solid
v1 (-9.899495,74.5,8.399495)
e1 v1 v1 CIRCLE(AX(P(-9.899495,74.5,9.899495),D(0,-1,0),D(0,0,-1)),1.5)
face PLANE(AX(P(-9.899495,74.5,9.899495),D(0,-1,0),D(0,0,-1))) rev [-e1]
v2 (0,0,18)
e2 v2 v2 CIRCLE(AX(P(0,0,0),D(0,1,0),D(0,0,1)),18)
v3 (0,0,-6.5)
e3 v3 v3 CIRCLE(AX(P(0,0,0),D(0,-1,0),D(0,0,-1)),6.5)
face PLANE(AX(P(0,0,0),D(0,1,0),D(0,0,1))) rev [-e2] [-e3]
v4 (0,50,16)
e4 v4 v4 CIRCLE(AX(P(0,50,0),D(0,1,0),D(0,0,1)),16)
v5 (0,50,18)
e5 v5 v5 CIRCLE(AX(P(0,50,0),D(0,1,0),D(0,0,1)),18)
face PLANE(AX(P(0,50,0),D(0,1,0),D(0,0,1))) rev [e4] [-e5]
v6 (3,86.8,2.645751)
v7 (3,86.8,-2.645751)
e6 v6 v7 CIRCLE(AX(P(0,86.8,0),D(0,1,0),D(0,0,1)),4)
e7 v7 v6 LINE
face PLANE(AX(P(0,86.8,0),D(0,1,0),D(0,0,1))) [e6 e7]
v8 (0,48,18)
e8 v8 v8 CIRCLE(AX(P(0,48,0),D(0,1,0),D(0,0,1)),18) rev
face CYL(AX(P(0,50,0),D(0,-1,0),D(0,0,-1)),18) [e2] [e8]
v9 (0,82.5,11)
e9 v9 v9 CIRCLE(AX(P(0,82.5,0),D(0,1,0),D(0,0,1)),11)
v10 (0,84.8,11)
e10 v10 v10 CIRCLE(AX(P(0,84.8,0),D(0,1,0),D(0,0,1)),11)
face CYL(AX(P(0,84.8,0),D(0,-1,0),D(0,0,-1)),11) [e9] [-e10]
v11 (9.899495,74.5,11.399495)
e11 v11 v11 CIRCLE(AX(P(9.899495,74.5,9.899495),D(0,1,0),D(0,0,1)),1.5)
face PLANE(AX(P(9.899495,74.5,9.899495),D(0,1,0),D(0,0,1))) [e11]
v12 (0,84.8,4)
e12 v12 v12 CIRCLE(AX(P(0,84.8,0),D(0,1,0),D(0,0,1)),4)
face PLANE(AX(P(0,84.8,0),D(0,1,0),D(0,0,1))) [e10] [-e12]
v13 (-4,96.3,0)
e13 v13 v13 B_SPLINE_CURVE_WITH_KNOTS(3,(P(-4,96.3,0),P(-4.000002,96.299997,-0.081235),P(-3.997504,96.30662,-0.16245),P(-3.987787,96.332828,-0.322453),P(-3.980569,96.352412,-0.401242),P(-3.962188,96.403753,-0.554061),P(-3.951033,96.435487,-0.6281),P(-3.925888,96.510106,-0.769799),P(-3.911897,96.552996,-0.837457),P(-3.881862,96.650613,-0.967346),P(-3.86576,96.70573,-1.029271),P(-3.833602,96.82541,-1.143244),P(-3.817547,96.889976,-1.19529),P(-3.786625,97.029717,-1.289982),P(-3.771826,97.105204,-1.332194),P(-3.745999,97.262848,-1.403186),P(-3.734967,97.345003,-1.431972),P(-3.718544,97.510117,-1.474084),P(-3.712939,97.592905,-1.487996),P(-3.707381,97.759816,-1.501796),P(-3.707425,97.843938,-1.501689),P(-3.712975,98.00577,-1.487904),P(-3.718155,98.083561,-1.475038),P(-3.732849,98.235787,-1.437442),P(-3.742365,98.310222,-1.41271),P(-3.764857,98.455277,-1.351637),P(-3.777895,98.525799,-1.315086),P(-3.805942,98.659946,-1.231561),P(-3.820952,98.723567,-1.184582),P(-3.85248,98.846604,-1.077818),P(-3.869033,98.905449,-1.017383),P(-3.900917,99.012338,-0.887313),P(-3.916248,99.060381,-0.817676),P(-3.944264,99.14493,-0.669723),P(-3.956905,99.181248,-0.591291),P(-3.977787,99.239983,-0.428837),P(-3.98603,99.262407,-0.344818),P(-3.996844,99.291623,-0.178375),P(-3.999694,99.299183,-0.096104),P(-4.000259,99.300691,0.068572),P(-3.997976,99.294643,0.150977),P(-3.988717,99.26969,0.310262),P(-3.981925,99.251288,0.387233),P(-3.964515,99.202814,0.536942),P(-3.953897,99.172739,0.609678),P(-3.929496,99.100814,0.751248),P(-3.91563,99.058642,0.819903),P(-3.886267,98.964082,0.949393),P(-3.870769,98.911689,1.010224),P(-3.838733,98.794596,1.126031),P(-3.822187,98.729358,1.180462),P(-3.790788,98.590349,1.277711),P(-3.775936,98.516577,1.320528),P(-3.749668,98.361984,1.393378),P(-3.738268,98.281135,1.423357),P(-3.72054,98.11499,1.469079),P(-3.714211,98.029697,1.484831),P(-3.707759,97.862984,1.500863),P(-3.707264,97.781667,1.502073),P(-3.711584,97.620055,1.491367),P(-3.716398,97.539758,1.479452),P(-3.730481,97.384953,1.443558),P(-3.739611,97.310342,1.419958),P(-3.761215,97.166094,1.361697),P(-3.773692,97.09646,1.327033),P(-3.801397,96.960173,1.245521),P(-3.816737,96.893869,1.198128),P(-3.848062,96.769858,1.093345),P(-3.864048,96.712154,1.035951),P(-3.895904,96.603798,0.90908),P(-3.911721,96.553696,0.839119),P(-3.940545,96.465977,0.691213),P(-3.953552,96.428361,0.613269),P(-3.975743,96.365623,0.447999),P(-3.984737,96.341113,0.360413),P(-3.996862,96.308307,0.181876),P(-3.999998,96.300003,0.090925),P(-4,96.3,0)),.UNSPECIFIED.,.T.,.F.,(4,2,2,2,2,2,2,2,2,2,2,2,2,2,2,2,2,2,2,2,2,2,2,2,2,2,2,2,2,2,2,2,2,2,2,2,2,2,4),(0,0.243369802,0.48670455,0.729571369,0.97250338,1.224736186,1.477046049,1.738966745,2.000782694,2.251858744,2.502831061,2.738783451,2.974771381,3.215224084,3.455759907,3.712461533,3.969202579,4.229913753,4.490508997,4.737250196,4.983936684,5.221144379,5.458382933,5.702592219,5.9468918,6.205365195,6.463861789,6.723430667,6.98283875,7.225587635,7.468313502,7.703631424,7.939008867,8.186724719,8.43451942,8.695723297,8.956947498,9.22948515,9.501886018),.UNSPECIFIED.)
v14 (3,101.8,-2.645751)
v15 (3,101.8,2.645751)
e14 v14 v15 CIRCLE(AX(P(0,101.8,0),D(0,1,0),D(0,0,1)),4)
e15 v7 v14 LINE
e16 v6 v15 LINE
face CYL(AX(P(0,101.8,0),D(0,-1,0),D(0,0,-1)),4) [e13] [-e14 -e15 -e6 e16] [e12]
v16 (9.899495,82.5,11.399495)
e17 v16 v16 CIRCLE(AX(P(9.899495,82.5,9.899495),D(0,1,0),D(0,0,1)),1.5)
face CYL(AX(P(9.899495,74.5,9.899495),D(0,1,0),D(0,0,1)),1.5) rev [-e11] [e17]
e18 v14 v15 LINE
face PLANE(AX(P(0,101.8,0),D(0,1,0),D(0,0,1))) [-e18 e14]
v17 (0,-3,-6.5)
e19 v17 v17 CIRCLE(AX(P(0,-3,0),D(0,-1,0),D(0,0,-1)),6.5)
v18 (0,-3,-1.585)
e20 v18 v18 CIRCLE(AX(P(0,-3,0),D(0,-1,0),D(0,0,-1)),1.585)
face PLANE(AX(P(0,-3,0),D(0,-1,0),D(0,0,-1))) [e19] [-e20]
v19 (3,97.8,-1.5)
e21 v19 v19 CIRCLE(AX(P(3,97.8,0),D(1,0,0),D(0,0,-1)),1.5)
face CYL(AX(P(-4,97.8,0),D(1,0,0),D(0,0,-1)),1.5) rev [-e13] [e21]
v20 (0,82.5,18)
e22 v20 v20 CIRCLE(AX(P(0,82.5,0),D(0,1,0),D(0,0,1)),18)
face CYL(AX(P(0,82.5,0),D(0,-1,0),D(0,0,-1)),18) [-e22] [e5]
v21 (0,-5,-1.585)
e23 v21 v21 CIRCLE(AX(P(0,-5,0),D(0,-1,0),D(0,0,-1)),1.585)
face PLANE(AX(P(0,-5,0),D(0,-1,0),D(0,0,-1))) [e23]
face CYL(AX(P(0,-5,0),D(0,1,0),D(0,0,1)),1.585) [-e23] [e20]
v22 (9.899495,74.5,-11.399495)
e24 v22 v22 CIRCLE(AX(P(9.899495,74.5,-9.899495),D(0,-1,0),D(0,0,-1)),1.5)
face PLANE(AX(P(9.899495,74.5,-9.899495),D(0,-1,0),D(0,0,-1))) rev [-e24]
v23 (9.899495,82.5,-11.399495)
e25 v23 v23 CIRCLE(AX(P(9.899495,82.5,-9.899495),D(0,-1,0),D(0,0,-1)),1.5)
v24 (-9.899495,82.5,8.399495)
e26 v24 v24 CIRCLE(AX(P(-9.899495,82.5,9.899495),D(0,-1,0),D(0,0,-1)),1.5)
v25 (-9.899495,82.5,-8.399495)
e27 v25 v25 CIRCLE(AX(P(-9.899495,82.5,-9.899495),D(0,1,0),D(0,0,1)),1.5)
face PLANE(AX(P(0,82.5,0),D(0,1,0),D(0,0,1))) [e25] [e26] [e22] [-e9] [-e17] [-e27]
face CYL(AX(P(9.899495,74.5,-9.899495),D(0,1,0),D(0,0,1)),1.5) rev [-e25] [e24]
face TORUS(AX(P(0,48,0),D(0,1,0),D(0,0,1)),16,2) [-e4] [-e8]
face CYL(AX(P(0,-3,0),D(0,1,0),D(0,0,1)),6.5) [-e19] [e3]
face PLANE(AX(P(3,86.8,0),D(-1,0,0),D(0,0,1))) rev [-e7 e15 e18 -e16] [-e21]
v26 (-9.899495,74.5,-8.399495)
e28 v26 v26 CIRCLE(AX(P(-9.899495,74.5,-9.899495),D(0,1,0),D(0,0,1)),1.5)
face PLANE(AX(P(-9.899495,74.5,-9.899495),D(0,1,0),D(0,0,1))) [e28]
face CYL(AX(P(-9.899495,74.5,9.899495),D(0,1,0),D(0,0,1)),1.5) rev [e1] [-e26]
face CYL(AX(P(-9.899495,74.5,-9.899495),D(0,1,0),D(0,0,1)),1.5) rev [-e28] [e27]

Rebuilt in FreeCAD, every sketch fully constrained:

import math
import FreeCAD as App
import Part
import Sketcher
Q = App.Units.Quantity


def edges_at(feature, points):
    """Names of the edges that pass closest to the given points."""
    edges = feature.Shape.Edges
    near = lambda p: min(range(len(edges)), key=lambda i: edges[i].distToShape(Part.Vertex(*p))[0])
    return sorted({f"Edge{near(p) + 1}" for p in points})

doc = App.newDocument("Part")
params = doc.addObject("Spreadsheet::Sheet", "Params")
for row, (alias, value) in enumerate([
    ("sketch1_diameter", "36 mm"),
    ("pad1_length", "50 mm"),
    ("fillet_radius", "2 mm"),
    ("sketch2_diameter", "13 mm"),
    ("pad2_length", "3 mm"),
    ("sketch3_diameter", "36 mm"),
    ("pad3_length", "32.5 mm"),
    ("sketch4_diameter", "22 mm"),
    ("pad4_length", "2.3 mm"),
    ("sketch5_diameter", "8 mm"),
    ("pad5_length", "17 mm"),
    ("sketch6_radius", "4 mm"),
    ("pocket1_length", "15 mm"),
    ("sketch7_diameter", "3 mm"),
    ("pocket2_length", "8 mm"),
    ("sketch8_diameter", "3.17 mm"),
    ("pad6_length", "2 mm"),
    ("sketch9_diameter", "3 mm"),
    ("pocket3_length", "7 mm"),
], start=1):
    params.set(f"A{row}", alias)
    params.set(f"B{row}", "=" + value)
    params.setAlias(f"B{row}", alias)

body = doc.addObject("PartDesign::Body", "Body")

# Sketch on XZ plane
sketch1 = doc.addObject("Sketcher::SketchObject", "Sketch")
body.addObject(sketch1)
sketch1.AttachmentSupport = (doc.XZ_Plane, [""])
sketch1.MapMode = "FlatFace"
sketch1.addGeometry(Part.Circle(App.Vector(0, 0, 0), App.Vector(0, 0, 1), 18), False)
sketch1.addConstraint(Sketcher.Constraint("Coincident", 0, 3, -1, 1))
sketch1.addConstraint(Sketcher.Constraint("Diameter", 0, Q("36 mm")))
sketch1.setExpression("Constraints[1]", "Params.sketch1_diameter")
pad1 = doc.addObject("PartDesign::Pad", "Pad")
body.addObject(pad1)
pad1.Profile = sketch1
pad1.setExpression("Length", "Params.pad1_length")
pad1.Reversed = True
doc.recompute()

fillet = doc.addObject("PartDesign::Fillet", "Fillet")
body.addObject(fillet)
fillet.Base = (pad1, edges_at(pad1, [(0, 50, -18)]))
fillet.setExpression("Radius", "Params.fillet_radius")

# Sketch on XZ plane
sketch2 = doc.addObject("Sketcher::SketchObject", "Sketch001")
body.addObject(sketch2)
sketch2.AttachmentSupport = (doc.XZ_Plane, [""])
sketch2.MapMode = "FlatFace"
sketch2.addGeometry(Part.Circle(App.Vector(0, 0, 0), App.Vector(0, 0, 1), 6.5), False)
sketch2.addConstraint(Sketcher.Constraint("Coincident", 0, 3, -1, 1))
sketch2.addConstraint(Sketcher.Constraint("Diameter", 0, Q("13 mm")))
sketch2.setExpression("Constraints[1]", "Params.sketch2_diameter")
pad2 = doc.addObject("PartDesign::Pad", "Pad001")
body.addObject(pad2)
pad2.Profile = sketch2
pad2.setExpression("Length", "Params.pad2_length")

# Sketch on XZ plane
sketch3 = doc.addObject("Sketcher::SketchObject", "Sketch002")
body.addObject(sketch3)
sketch3.AttachmentSupport = (doc.XZ_Plane, [""])
sketch3.MapMode = "FlatFace"
sketch3.AttachmentOffset = App.Placement(App.Vector(0, 0, -50), App.Rotation())
sketch3.addGeometry(Part.Circle(App.Vector(0, 0, 0), App.Vector(0, 0, 1), 18), False)
sketch3.addConstraint(Sketcher.Constraint("Coincident", 0, 3, -1, 1))
sketch3.addConstraint(Sketcher.Constraint("Diameter", 0, Q("36 mm")))
sketch3.setExpression("Constraints[1]", "Params.sketch3_diameter")
pad3 = doc.addObject("PartDesign::Pad", "Pad002")
body.addObject(pad3)
pad3.Profile = sketch3
pad3.setExpression("Length", "Params.pad3_length")
pad3.Reversed = True

# Sketch on XZ plane
sketch4 = doc.addObject("Sketcher::SketchObject", "Sketch003")
body.addObject(sketch4)
sketch4.AttachmentSupport = (doc.XZ_Plane, [""])
sketch4.MapMode = "FlatFace"
sketch4.AttachmentOffset = App.Placement(App.Vector(0, 0, -82.5), App.Rotation())
sketch4.addGeometry(Part.Circle(App.Vector(0, 0, 0), App.Vector(0, 0, 1), 11), False)
sketch4.addConstraint(Sketcher.Constraint("Coincident", 0, 3, -1, 1))
sketch4.addConstraint(Sketcher.Constraint("Diameter", 0, Q("22 mm")))
sketch4.setExpression("Constraints[1]", "Params.sketch4_diameter")
pad4 = doc.addObject("PartDesign::Pad", "Pad003")
body.addObject(pad4)
pad4.Profile = sketch4
pad4.setExpression("Length", "Params.pad4_length")
pad4.Reversed = True

# Sketch on XZ plane
sketch5 = doc.addObject("Sketcher::SketchObject", "Sketch004")
body.addObject(sketch5)
sketch5.AttachmentSupport = (doc.XZ_Plane, [""])
sketch5.MapMode = "FlatFace"
sketch5.AttachmentOffset = App.Placement(App.Vector(0, 0, -84.8), App.Rotation())
sketch5.addGeometry(Part.Circle(App.Vector(0, 0, 0), App.Vector(0, 0, 1), 4), False)
sketch5.addConstraint(Sketcher.Constraint("Coincident", 0, 3, -1, 1))
sketch5.addConstraint(Sketcher.Constraint("Diameter", 0, Q("8 mm")))
sketch5.setExpression("Constraints[1]", "Params.sketch5_diameter")
pad5 = doc.addObject("PartDesign::Pad", "Pad004")
body.addObject(pad5)
pad5.Profile = sketch5
pad5.setExpression("Length", "Params.pad5_length")
pad5.Reversed = True

# Sketch on XZ plane
sketch6 = doc.addObject("Sketcher::SketchObject", "Sketch005")
body.addObject(sketch6)
sketch6.AttachmentSupport = (doc.XZ_Plane, [""])
sketch6.MapMode = "FlatFace"
sketch6.AttachmentOffset = App.Placement(App.Vector(0, 0, -86.8), App.Rotation())
sketch6.addGeometry(Part.LineSegment(App.Vector(3, -2.645751, 0), App.Vector(3, 2.645751, 0)), False)
sketch6.addGeometry(Part.ArcOfCircle(Part.Circle(App.Vector(0, 0, 0), App.Vector(0, 0, 1), 4), math.radians(-41.409622), math.radians(41.409622)), False)
sketch6.addConstraint(Sketcher.Constraint("Coincident", 0, 1, 1, 1))
sketch6.addConstraint(Sketcher.Constraint("Coincident", 1, 2, 0, 2))
sketch6.addConstraint(Sketcher.Constraint("Vertical", 0))
sketch6.addConstraint(Sketcher.Constraint("Coincident", 1, 3, -1, 1))
sketch6.addConstraint(Sketcher.Constraint("Radius", 1, Q("4 mm")))
sketch6.addConstraint(Sketcher.Constraint("DistanceX", -1, 1, 0, 1, Q("3 mm")))
sketch6.setExpression("Constraints[4]", "Params.sketch6_radius")
pocket1 = doc.addObject("PartDesign::Pocket", "Pocket")
body.addObject(pocket1)
pocket1.Profile = sketch6
pocket1.setExpression("Length", "Params.pocket1_length")

# Sketch on XZ plane
sketch7 = doc.addObject("Sketcher::SketchObject", "Sketch006")
body.addObject(sketch7)
sketch7.AttachmentSupport = (doc.XZ_Plane, [""])
sketch7.MapMode = "FlatFace"
sketch7.AttachmentOffset = App.Placement(App.Vector(0, 0, -82.5), App.Rotation())
sketch7.addGeometry(Part.Circle(App.Vector(-9.899495, -9.899495, 0), App.Vector(0, 0, 1), 1.5), False)
sketch7.addGeometry(Part.Circle(App.Vector(9.899495, -9.899495, 0), App.Vector(0, 0, 1), 1.5), False)
sketch7.addGeometry(Part.Circle(App.Vector(9.899495, 9.899495, 0), App.Vector(0, 0, 1), 1.5), False)
sketch7.addGeometry(Part.Circle(App.Vector(-9.899495, 9.899495, 0), App.Vector(0, 0, 1), 1.5), False)
sketch7.addConstraint(Sketcher.Constraint("Equal", 0, 1))
sketch7.addConstraint(Sketcher.Constraint("Equal", 1, 2))
sketch7.addConstraint(Sketcher.Constraint("Equal", 2, 3))
sketch7.addConstraint(Sketcher.Constraint("Symmetric", 0, 3, 2, 3, -1, 1))
sketch7.addConstraint(Sketcher.Constraint("Symmetric", 1, 3, 3, 3, -1, 1))
sketch7.addConstraint(Sketcher.Constraint("Symmetric", 0, 3, 1, 3, -2))
sketch7.addConstraint(Sketcher.Constraint("Diameter", 0, Q("3 mm")))
sketch7.addConstraint(Sketcher.Constraint("DistanceX", 0, 3, 1, 3, Q("19.79899 mm")))
sketch7.addConstraint(Sketcher.Constraint("DistanceY", 1, 3, 2, 3, Q("19.79899 mm")))
sketch7.setExpression("Constraints[6]", "Params.sketch7_diameter")
pocket2 = doc.addObject("PartDesign::Pocket", "Pocket001")
body.addObject(pocket2)
pocket2.Profile = sketch7
pocket2.setExpression("Length", "Params.pocket2_length")
pocket2.Reversed = True

# Sketch on XZ plane
sketch8 = doc.addObject("Sketcher::SketchObject", "Sketch007")
body.addObject(sketch8)
sketch8.AttachmentSupport = (doc.XZ_Plane, [""])
sketch8.MapMode = "FlatFace"
sketch8.AttachmentOffset = App.Placement(App.Vector(0, 0, 3), App.Rotation())
sketch8.addGeometry(Part.Circle(App.Vector(0, 0, 0), App.Vector(0, 0, 1), 1.585), False)
sketch8.addConstraint(Sketcher.Constraint("Coincident", 0, 3, -1, 1))
sketch8.addConstraint(Sketcher.Constraint("Diameter", 0, Q("3.17 mm")))
sketch8.setExpression("Constraints[1]", "Params.sketch8_diameter")
pad6 = doc.addObject("PartDesign::Pad", "Pad005")
body.addObject(pad6)
pad6.Profile = sketch8
pad6.setExpression("Length", "Params.pad6_length")

# Sketch on YZ plane
sketch9 = doc.addObject("Sketcher::SketchObject", "Sketch008")
body.addObject(sketch9)
sketch9.AttachmentSupport = (doc.YZ_Plane, [""])
sketch9.MapMode = "FlatFace"
sketch9.AttachmentOffset = App.Placement(App.Vector(0, 0, 3), App.Rotation())
sketch9.addGeometry(Part.Circle(App.Vector(97.8, 0, 0), App.Vector(0, 0, 1), 1.5), False)
sketch9.addConstraint(Sketcher.Constraint("PointOnObject", 0, 3, -1))
sketch9.addConstraint(Sketcher.Constraint("Diameter", 0, Q("3 mm")))
sketch9.addConstraint(Sketcher.Constraint("DistanceX", -1, 1, 0, 3, Q("97.8 mm")))
sketch9.setExpression("Constraints[1]", "Params.sketch9_diameter")
pocket3 = doc.addObject("PartDesign::Pocket", "Pocket002")
body.addObject(pocket3)
pocket3.Profile = sketch9
pocket3.setExpression("Length", "Params.pocket3_length")

doc.recompute()
